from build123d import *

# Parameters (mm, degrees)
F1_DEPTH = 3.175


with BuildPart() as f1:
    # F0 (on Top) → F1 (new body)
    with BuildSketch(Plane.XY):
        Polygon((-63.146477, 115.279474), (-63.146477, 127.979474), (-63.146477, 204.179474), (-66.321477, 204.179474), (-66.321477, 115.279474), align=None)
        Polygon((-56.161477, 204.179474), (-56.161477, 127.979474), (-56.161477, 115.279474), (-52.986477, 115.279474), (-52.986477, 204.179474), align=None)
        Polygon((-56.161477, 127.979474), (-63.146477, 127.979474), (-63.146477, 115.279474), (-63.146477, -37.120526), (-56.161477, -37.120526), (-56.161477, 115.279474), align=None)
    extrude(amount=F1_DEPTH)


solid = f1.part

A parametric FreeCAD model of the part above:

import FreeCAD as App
import Part
import Sketcher
Q = App.Units.Quantity

doc = App.newDocument("Part")
params = doc.addObject("Spreadsheet::Sheet", "Params")
for row, (alias, value) in enumerate([
    ("sketch1_height", "3 in"),
    ("sketch1_height2", "6 in"),
    ("sketch1_height3", "3.5 in"),
    ("sketch1_width", "0.125 in"),
    ("pad1_length", "0.125 in"),
], start=1):
    params.set(f"A{row}", alias)
    params.set(f"B{row}", "=" + value)
    params.setAlias(f"B{row}", alias)

body = doc.addObject("PartDesign::Body", "Body")

# Sketch on XY plane
sketch1 = body.newObject("Sketcher::SketchObject", "Sketch")
sketch1.AttachmentSupport = (doc.getObject("XY_Plane"), [""])
sketch1.MapMode = "FlatFace"
sketch1.addGeometry([
    Part.LineSegment(App.Vector(-63.1, 128, 0), App.Vector(-63.1, 204.2, 0)),  # 0
    Part.LineSegment(App.Vector(-63.1, 204.2, 0), App.Vector(-66.3, 204.2, 0)),  # 1
    Part.LineSegment(App.Vector(-66.3, 204.2, 0), App.Vector(-66.3, 115.3, 0)),  # 2
    Part.LineSegment(App.Vector(-66.3, 115.3, 0), App.Vector(-63.1, 115.3, 0)),  # 3
    Part.LineSegment(App.Vector(-63.1, 115.3, 0), App.Vector(-63.1, -37.1, 0)),  # 4
    Part.LineSegment(App.Vector(-63.1, -37.1, 0), App.Vector(-56.2, -37.1, 0)),  # 5
    Part.LineSegment(App.Vector(-56.2, -37.1, 0), App.Vector(-56.2, 115.3, 0)),  # 6
    Part.LineSegment(App.Vector(-56.2, 115.3, 0), App.Vector(-53, 115.3, 0)),  # 7
    Part.LineSegment(App.Vector(-53, 115.3, 0), App.Vector(-53, 204.2, 0)),  # 8
    Part.LineSegment(App.Vector(-53, 204.2, 0), App.Vector(-56.2, 204.2, 0)),  # 9
    Part.LineSegment(App.Vector(-56.2, 204.2, 0), App.Vector(-56.2, 128, 0)),  # 10
    Part.LineSegment(App.Vector(-56.2, 128, 0), App.Vector(-63.1, 128, 0)),  # 11
], False)
sketch1.addConstraint([
    Sketcher.Constraint("Coincident", 0, 2, 1, 1),
    Sketcher.Constraint("Coincident", 1, 2, 2, 1),
    Sketcher.Constraint("Coincident", 2, 2, 3, 1),
    Sketcher.Constraint("Coincident", 3, 2, 4, 1),
    Sketcher.Constraint("Coincident", 4, 2, 5, 1),
    Sketcher.Constraint("Coincident", 5, 2, 6, 1),
    Sketcher.Constraint("Coincident", 6, 2, 7, 1),
    Sketcher.Constraint("Coincident", 7, 2, 8, 1),
    Sketcher.Constraint("Coincident", 8, 2, 9, 1),
    Sketcher.Constraint("Coincident", 9, 2, 10, 1),
    Sketcher.Constraint("Coincident", 10, 2, 11, 1),
    Sketcher.Constraint("Coincident", 11, 2, 0, 1),
    Sketcher.Constraint("Vertical", 0),
    Sketcher.Constraint("Horizontal", 1),
    Sketcher.Constraint("Vertical", 2),
    Sketcher.Constraint("Horizontal", 3),
    Sketcher.Constraint("Vertical", 4),
    Sketcher.Constraint("Horizontal", 5),
    Sketcher.Constraint("Vertical", 6),
    Sketcher.Constraint("Horizontal", 7),
    Sketcher.Constraint("Vertical", 8),
    Sketcher.Constraint("Horizontal", 9),
    Sketcher.Constraint("Vertical", 10),
    Sketcher.Constraint("Horizontal", 11),
    Sketcher.Constraint("Horizontal", 3, 2, 6, 2),
    Sketcher.Constraint("Horizontal", 1, 2, 8, 2),
    Sketcher.Constraint("Vertical", 0, 2, 3, 2),
    Sketcher.Constraint("Vertical", 6, 2, 9, 2),
    Sketcher.Constraint("Equal", 3, 7),
    Sketcher.Constraint("DistanceY", 0, 1, 0, 2, Q("3 in")),
    Sketcher.Constraint("DistanceY", 4, 2, 4, 1, Q("6 in")),
    Sketcher.Constraint("DistanceY", 2, 2, 2, 1, Q("3.5 in")),
    Sketcher.Constraint("DistanceX", 2, 2, 5, 2, Q("0.4 in")),
    Sketcher.Constraint("DistanceX", 1, 2, 1, 1, Q("0.125 in")),
    Sketcher.Constraint("DistanceX", 0, 2, -1, 1, Q("63.146477 mm")),
    Sketcher.Constraint("DistanceY", -1, 1, 0, 2, Q("204.179474 mm")),
])
sketch1.setExpression("Constraints[29]", "Params.sketch1_height")
sketch1.setExpression("Constraints[30]", "Params.sketch1_height2")
sketch1.setExpression("Constraints[31]", "Params.sketch1_height3")
sketch1.setExpression("Constraints[33]", "Params.sketch1_width")
pad1 = body.newObject("PartDesign::Pad", "Pad")
pad1.Profile = sketch1
pad1.setExpression("Length", "Params.pad1_length")

doc.recompute()
